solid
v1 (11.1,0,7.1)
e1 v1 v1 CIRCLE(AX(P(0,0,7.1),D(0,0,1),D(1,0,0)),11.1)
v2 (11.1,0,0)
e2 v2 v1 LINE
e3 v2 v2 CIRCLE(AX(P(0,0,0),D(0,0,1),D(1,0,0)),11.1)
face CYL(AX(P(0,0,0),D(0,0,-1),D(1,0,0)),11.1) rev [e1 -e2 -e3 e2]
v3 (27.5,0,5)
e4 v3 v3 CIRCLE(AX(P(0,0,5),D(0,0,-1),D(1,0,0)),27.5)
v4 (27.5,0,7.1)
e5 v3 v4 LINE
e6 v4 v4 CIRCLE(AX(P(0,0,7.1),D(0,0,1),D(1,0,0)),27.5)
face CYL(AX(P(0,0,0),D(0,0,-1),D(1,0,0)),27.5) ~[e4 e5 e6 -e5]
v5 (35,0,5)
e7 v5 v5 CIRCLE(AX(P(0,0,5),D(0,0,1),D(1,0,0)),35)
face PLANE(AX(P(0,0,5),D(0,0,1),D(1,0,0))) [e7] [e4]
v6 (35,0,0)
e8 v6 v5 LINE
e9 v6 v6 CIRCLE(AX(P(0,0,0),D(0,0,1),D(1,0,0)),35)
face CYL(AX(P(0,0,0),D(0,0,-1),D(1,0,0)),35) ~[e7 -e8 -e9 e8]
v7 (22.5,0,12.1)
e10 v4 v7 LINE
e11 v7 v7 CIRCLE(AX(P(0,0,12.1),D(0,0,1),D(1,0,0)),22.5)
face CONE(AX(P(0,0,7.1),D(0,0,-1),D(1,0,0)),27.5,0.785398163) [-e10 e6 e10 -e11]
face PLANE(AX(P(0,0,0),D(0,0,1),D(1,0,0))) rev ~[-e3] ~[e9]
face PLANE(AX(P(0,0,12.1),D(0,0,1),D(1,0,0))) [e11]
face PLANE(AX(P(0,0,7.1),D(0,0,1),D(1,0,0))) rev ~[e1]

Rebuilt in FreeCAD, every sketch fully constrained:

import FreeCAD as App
import Part
import Sketcher

V = App.Vector
Q = App.Units.Quantity


def edges_at(feature, points):
    """Names of the edges that pass closest to the given points."""
    edges = feature.Shape.Edges
    near = lambda p: min(range(len(edges)), key=lambda i: edges[i].distToShape(Part.Vertex(*p))[0])
    return sorted({f"Edge{near(p) + 1}" for p in points})

doc = App.newDocument("Part")
params = doc.addObject("Spreadsheet::Sheet", "Params")
for row, (alias, value) in enumerate([
    ("sketch1_diameter", "22.2 mm"),
    ("sketch1_diameter2", "17.2 mm"),
    ("pad1_length", "7.1 mm"),
    ("sketch2_diameter", "22.2 mm"),
    ("pad2_length", "5 mm"),
    ("sketch3_diameter", "70 mm"),
    ("sketch3_diameter2", "22.2 mm"),
    ("pad3_length", "5 mm"),
    ("sketch4_diameter", "55 mm"),
    ("sketch4_diameter2", "22.2 mm"),
    ("pad4_length", "12.1 mm"),
    ("chamfer_size", "5 mm"),
    ("sketch5_diameter", "22.2 mm"),
    ("sketch5_diameter2", "17.2 mm"),
    ("pocket1_length", "7.1 mm"),
], start=1):
    params.set(f"A{row}", alias)
    params.set(f"B{row}", "=" + value)
    params.setAlias(f"B{row}", alias)

body = doc.addObject("PartDesign::Body", "Body")

# Sketch on XY plane
sketch1 = body.newObject("Sketcher::SketchObject", "Sketch")
sketch1.AttachmentSupport = (doc.getObject("XY_Plane"), [""])
sketch1.MapMode = "FlatFace"
sketch1.addGeometry(Part.Circle(V(0, 0, 0), V(0, 0, 1), 11.1), False)
sketch1.addGeometry(Part.Circle(V(0, 0, 0), V(0, 0, 1), 8.6), False)
sketch1.addConstraint(Sketcher.Constraint("Coincident", 0, 3, -1, 1))
sketch1.addConstraint(Sketcher.Constraint("Coincident", 1, 3, -1, 1))
sketch1.addConstraint(Sketcher.Constraint("Diameter", 0, Q("22.2 mm")))
sketch1.addConstraint(Sketcher.Constraint("Diameter", 1, Q("17.2 mm")))
sketch1.setExpression("Constraints[2]", "Params.sketch1_diameter")
sketch1.setExpression("Constraints[3]", "Params.sketch1_diameter2")
pad1 = body.newObject("PartDesign::Pad", "Pad")
pad1.Profile = sketch1
pad1.setExpression("Length", "Params.pad1_length")

# Sketch on XY plane
sketch2 = body.newObject("Sketcher::SketchObject", "Sketch001")
sketch2.AttachmentSupport = (doc.getObject("XY_Plane"), [""])
sketch2.MapMode = "FlatFace"
sketch2.AttachmentOffset = App.Placement(V(0, 0, 7.1), App.Rotation())
sketch2.addGeometry(Part.Circle(V(0, 0, 0), V(0, 0, 1), 11.1), False)
sketch2.addConstraint(Sketcher.Constraint("Coincident", 0, 3, -1, 1))
sketch2.addConstraint(Sketcher.Constraint("Diameter", 0, Q("22.2 mm")))
sketch2.setExpression("Constraints[1]", "Params.sketch2_diameter")
pad2 = body.newObject("PartDesign::Pad", "Pad001")
pad2.Profile = sketch2
pad2.setExpression("Length", "Params.pad2_length")

# Sketch on XY plane
sketch3 = body.newObject("Sketcher::SketchObject", "Sketch002")
sketch3.AttachmentSupport = (doc.getObject("XY_Plane"), [""])
sketch3.MapMode = "FlatFace"
sketch3.addGeometry(Part.Circle(V(0, 0, 0), V(0, 0, 1), 35), False)
sketch3.addGeometry(Part.Circle(V(0, 0, 0), V(0, 0, 1), 11.1), False)
sketch3.addConstraint(Sketcher.Constraint("Coincident", 0, 3, -1, 1))
sketch3.addConstraint(Sketcher.Constraint("Coincident", 1, 3, -1, 1))
sketch3.addConstraint(Sketcher.Constraint("Diameter", 0, Q("70 mm")))
sketch3.addConstraint(Sketcher.Constraint("Diameter", 1, Q("22.2 mm")))
sketch3.setExpression("Constraints[2]", "Params.sketch3_diameter")
sketch3.setExpression("Constraints[3]", "Params.sketch3_diameter2")
pad3 = body.newObject("PartDesign::Pad", "Pad002")
pad3.Profile = sketch3
pad3.setExpression("Length", "Params.pad3_length")

# Sketch on XY plane
sketch4 = body.newObject("Sketcher::SketchObject", "Sketch003")
sketch4.AttachmentSupport = (doc.getObject("XY_Plane"), [""])
sketch4.MapMode = "FlatFace"
sketch4.addGeometry(Part.Circle(V(0, 0, 0), V(0, 0, 1), 27.5), False)
sketch4.addGeometry(Part.Circle(V(0, 0, 0), V(0, 0, 1), 11.1), False)
sketch4.addConstraint(Sketcher.Constraint("Coincident", 0, 3, -1, 1))
sketch4.addConstraint(Sketcher.Constraint("Coincident", 1, 3, -1, 1))
sketch4.addConstraint(Sketcher.Constraint("Diameter", 0, Q("55 mm")))
sketch4.addConstraint(Sketcher.Constraint("Diameter", 1, Q("22.2 mm")))
sketch4.setExpression("Constraints[2]", "Params.sketch4_diameter")
sketch4.setExpression("Constraints[3]", "Params.sketch4_diameter2")
pad4 = body.newObject("PartDesign::Pad", "Pad003")
pad4.Profile = sketch4
pad4.setExpression("Length", "Params.pad4_length")
doc.recompute()

chamfer = body.newObject("PartDesign::Chamfer", "Chamfer")
chamfer.Base = (pad4, edges_at(pad4, [(-25.639, -9.944, 12.1)]))
chamfer.setExpression("Size", "Params.chamfer_size")

# Sketch on XY plane
sketch5 = body.newObject("Sketcher::SketchObject", "Sketch004")
sketch5.AttachmentSupport = (doc.getObject("XY_Plane"), [""])
sketch5.MapMode = "FlatFace"
sketch5.addGeometry(Part.Circle(V(0, 0, 0), V(0, 0, 1), 11.1), False)
sketch5.addGeometry(Part.Circle(V(0, 0, 0), V(0, 0, 1), 8.6), False)
sketch5.addConstraint(Sketcher.Constraint("Coincident", 0, 3, -1, 1))
sketch5.addConstraint(Sketcher.Constraint("Coincident", 1, 3, -1, 1))
sketch5.addConstraint(Sketcher.Constraint("Diameter", 0, Q("22.2 mm")))
sketch5.addConstraint(Sketcher.Constraint("Diameter", 1, Q("17.2 mm")))
sketch5.setExpression("Constraints[2]", "Params.sketch5_diameter")
sketch5.setExpression("Constraints[3]", "Params.sketch5_diameter2")
pocket1 = body.newObject("PartDesign::Pocket", "Pocket")
pocket1.Profile = sketch5
pocket1.setExpression("Length", "Params.pocket1_length")
pocket1.Reversed = True

doc.recompute()
